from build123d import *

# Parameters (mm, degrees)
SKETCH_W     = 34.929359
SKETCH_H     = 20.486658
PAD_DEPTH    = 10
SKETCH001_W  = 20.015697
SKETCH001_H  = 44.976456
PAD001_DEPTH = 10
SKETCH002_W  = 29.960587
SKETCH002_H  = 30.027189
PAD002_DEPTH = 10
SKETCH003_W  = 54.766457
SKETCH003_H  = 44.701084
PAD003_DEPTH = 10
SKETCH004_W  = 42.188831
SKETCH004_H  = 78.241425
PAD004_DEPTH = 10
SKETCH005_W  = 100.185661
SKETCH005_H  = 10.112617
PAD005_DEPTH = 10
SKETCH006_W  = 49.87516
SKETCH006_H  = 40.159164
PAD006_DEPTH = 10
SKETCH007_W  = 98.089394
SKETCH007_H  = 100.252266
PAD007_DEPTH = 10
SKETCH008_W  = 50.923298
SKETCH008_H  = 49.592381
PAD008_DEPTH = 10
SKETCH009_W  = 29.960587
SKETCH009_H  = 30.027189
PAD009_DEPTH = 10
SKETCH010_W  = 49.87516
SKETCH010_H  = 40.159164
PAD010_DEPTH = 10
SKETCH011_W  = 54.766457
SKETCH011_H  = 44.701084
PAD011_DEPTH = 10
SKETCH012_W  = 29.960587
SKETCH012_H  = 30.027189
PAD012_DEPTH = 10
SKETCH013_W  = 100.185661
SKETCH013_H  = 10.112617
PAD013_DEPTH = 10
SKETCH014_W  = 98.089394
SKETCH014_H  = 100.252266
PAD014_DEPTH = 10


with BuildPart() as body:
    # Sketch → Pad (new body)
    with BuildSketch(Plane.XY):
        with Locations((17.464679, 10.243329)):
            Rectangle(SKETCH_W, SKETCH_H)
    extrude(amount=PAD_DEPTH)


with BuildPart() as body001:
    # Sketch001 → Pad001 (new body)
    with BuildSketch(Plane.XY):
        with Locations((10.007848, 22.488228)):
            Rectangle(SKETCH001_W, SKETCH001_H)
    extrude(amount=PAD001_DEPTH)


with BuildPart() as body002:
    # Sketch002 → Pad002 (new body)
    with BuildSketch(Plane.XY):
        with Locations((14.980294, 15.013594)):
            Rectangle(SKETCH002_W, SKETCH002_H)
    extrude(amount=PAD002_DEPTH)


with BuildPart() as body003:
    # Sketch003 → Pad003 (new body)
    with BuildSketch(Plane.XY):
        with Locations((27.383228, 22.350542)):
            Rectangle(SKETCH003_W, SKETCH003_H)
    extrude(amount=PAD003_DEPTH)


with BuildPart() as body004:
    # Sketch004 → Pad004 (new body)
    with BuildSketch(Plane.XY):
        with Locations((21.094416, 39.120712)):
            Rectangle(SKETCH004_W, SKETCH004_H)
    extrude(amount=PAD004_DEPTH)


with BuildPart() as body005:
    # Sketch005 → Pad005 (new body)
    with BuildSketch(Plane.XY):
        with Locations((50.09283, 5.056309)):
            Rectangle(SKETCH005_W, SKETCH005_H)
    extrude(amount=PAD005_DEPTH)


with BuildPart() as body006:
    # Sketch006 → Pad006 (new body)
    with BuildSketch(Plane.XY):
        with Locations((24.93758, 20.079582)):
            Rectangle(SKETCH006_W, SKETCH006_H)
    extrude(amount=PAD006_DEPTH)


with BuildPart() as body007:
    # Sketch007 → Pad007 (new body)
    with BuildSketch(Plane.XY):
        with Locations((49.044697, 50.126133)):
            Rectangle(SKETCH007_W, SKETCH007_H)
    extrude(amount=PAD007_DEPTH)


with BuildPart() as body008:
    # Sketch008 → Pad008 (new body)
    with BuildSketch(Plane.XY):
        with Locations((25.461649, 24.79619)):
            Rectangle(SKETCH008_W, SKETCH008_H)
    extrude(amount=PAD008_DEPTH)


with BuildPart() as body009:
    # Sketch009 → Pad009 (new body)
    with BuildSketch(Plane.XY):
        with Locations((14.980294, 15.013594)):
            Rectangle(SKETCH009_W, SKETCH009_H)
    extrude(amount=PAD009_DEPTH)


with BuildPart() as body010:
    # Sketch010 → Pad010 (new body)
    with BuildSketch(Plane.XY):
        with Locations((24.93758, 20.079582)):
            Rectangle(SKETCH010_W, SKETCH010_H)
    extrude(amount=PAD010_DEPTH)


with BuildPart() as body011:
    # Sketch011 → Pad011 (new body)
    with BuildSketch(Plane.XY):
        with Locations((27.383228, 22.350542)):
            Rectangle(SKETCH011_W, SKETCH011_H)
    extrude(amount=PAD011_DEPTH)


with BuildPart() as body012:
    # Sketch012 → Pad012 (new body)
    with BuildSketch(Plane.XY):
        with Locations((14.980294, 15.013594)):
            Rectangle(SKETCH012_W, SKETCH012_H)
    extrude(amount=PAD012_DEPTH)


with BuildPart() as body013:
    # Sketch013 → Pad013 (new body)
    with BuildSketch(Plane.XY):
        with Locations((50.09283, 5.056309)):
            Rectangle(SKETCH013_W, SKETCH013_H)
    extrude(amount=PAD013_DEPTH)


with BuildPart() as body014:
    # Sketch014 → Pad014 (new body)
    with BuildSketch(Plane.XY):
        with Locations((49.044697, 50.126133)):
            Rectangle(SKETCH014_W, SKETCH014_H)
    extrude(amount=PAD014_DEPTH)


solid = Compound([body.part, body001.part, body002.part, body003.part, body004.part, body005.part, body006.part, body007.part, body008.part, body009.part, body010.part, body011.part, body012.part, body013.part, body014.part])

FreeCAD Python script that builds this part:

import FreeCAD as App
import Part
import Sketcher

doc = App.newDocument("Part")
body = doc.addObject("PartDesign::Body", "Body")

# Sketch on XY plane
sketch1 = doc.addObject("Sketcher::SketchObject", "Sketch")
body.addObject(sketch1)
sketch1.AttachmentSupport = (doc.XY_Plane, [""])
sketch1.MapMode = "FlatFace"
sketch1.addGeometry([
    Part.LineSegment(App.Vector(0, 20, 0), App.Vector(0, 0, 0)),
    Part.LineSegment(App.Vector(0, 0, 0), App.Vector(35, 0, 0)),
    Part.LineSegment(App.Vector(35, 0, 0), App.Vector(35, 20, 0)),
    Part.LineSegment(App.Vector(35, 20, 0), App.Vector(0, 20, 0)),
], False)
sketch1.addConstraint([
    Sketcher.Constraint("Coincident", 0, 2, 1, 1),
    Sketcher.Constraint("Coincident", 1, 2, 2, 1),
    Sketcher.Constraint("Coincident", 2, 2, 3, 1),
    Sketcher.Constraint("Coincident", 3, 2, 0, 1),
    Sketcher.Constraint("Vertical", 0),
    Sketcher.Constraint("Horizontal", 1),
    Sketcher.Constraint("Vertical", 2),
    Sketcher.Constraint("Horizontal", 3),
    Sketcher.Constraint("Coincident", 0, 2, -1, 1),
    Sketcher.Constraint("DistanceX", 1, 1, 1, 2, 34.929359),
    Sketcher.Constraint("DistanceY", 0, 2, 0, 1, 20.486658),
])
pad1 = doc.addObject("PartDesign::Pad", "Pad")
body.addObject(pad1)
pad1.Profile = sketch1
pad1.Length = 10
body2 = doc.addObject("PartDesign::Body", "Body001")

# Sketch on XY plane
sketch2 = doc.addObject("Sketcher::SketchObject", "Sketch001")
body2.addObject(sketch2)
sketch2.AttachmentSupport = (doc.getObject("XY_Plane001"), [""])
sketch2.MapMode = "FlatFace"
sketch2.addGeometry([
    Part.LineSegment(App.Vector(0, 45, 0), App.Vector(0, 0, 0)),
    Part.LineSegment(App.Vector(0, 0, 0), App.Vector(20, 0, 0)),
    Part.LineSegment(App.Vector(20, 0, 0), App.Vector(20, 45, 0)),
    Part.LineSegment(App.Vector(20, 45, 0), App.Vector(0, 45, 0)),
], False)
sketch2.addConstraint([
    Sketcher.Constraint("Coincident", 0, 2, 1, 1),
    Sketcher.Constraint("Coincident", 1, 2, 2, 1),
    Sketcher.Constraint("Coincident", 2, 2, 3, 1),
    Sketcher.Constraint("Coincident", 3, 2, 0, 1),
    Sketcher.Constraint("Vertical", 0),
    Sketcher.Constraint("Horizontal", 1),
    Sketcher.Constraint("Vertical", 2),
    Sketcher.Constraint("Horizontal", 3),
    Sketcher.Constraint("Coincident", 0, 2, -1, 1),
    Sketcher.Constraint("DistanceX", 1, 1, 1, 2, 20.015697),
    Sketcher.Constraint("DistanceY", 0, 2, 0, 1, 44.976456),
])
pad2 = doc.addObject("PartDesign::Pad", "Pad001")
body2.addObject(pad2)
pad2.Profile = sketch2
pad2.Length = 10
body3 = doc.addObject("PartDesign::Body", "Body002")

# Sketch on XY plane
sketch3 = doc.addObject("Sketcher::SketchObject", "Sketch002")
body3.addObject(sketch3)
sketch3.AttachmentSupport = (doc.getObject("XY_Plane002"), [""])
sketch3.MapMode = "FlatFace"
sketch3.addGeometry([
    Part.LineSegment(App.Vector(0, 30, 0), App.Vector(0, 0, 0)),
    Part.LineSegment(App.Vector(0, 0, 0), App.Vector(30, 0, 0)),
    Part.LineSegment(App.Vector(30, 0, 0), App.Vector(30, 30, 0)),
    Part.LineSegment(App.Vector(30, 30, 0), App.Vector(0, 30, 0)),
], False)
sketch3.addConstraint([
    Sketcher.Constraint("Coincident", 0, 2, 1, 1),
    Sketcher.Constraint("Coincident", 1, 2, 2, 1),
    Sketcher.Constraint("Coincident", 2, 2, 3, 1),
    Sketcher.Constraint("Coincident", 3, 2, 0, 1),
    Sketcher.Constraint("Vertical", 0),
    Sketcher.Constraint("Horizontal", 1),
    Sketcher.Constraint("Vertical", 2),
    Sketcher.Constraint("Horizontal", 3),
    Sketcher.Constraint("Coincident", 0, 2, -1, 1),
    Sketcher.Constraint("DistanceY", 0, 2, 0, 1, 30.027189),
    Sketcher.Constraint("DistanceX", 1, 1, 1, 2, 29.960587),
])
pad3 = doc.addObject("PartDesign::Pad", "Pad002")
body3.addObject(pad3)
pad3.Profile = sketch3
pad3.Length = 10
body4 = doc.addObject("PartDesign::Body", "Body003")

# Sketch on XY plane
sketch4 = doc.addObject("Sketcher::SketchObject", "Sketch003")
body4.addObject(sketch4)
sketch4.AttachmentSupport = (doc.getObject("XY_Plane003"), [""])
sketch4.MapMode = "FlatFace"
sketch4.addGeometry([
    Part.LineSegment(App.Vector(0, 45, 0), App.Vector(0, 0, 0)),
    Part.LineSegment(App.Vector(0, 0, 0), App.Vector(55, 0, 0)),
    Part.LineSegment(App.Vector(55, 0, 0), App.Vector(55, 45, 0)),
    Part.LineSegment(App.Vector(55, 45, 0), App.Vector(0, 45, 0)),
], False)
sketch4.addConstraint([
    Sketcher.Constraint("Coincident", 0, 2, 1, 1),
    Sketcher.Constraint("Coincident", 1, 2, 2, 1),
    Sketcher.Constraint("Coincident", 2, 2, 3, 1),
    Sketcher.Constraint("Coincident", 3, 2, 0, 1),
    Sketcher.Constraint("Vertical", 0),
    Sketcher.Constraint("Horizontal", 1),
    Sketcher.Constraint("Vertical", 2),
    Sketcher.Constraint("Horizontal", 3),
    Sketcher.Constraint("Coincident", 0, 2, -1, 1),
    Sketcher.Constraint("DistanceX", 1, 1, 1, 2, 54.766457),
    Sketcher.Constraint("DistanceY", 0, 2, 0, 1, 44.701084),
])
pad4 = doc.addObject("PartDesign::Pad", "Pad003")
body4.addObject(pad4)
pad4.Profile = sketch4
pad4.Length = 10
body5 = doc.addObject("PartDesign::Body", "Body004")

# Sketch on XY plane
sketch5 = doc.addObject("Sketcher::SketchObject", "Sketch004")
body5.addObject(sketch5)
sketch5.AttachmentSupport = (doc.getObject("XY_Plane004"), [""])
sketch5.MapMode = "FlatFace"
sketch5.addGeometry([
    Part.LineSegment(App.Vector(0, 78, 0), App.Vector(0, 0, 0)),
    Part.LineSegment(App.Vector(0, 0, 0), App.Vector(42, 0, 0)),
    Part.LineSegment(App.Vector(42, 0, 0), App.Vector(42, 78, 0)),
    Part.LineSegment(App.Vector(42, 78, 0), App.Vector(0, 78, 0)),
], False)
sketch5.addConstraint([
    Sketcher.Constraint("Coincident", 0, 2, 1, 1),
    Sketcher.Constraint("Coincident", 1, 2, 2, 1),
    Sketcher.Constraint("Coincident", 2, 2, 3, 1),
    Sketcher.Constraint("Coincident", 3, 2, 0, 1),
    Sketcher.Constraint("Vertical", 0),
    Sketcher.Constraint("Horizontal", 1),
    Sketcher.Constraint("Vertical", 2),
    Sketcher.Constraint("Horizontal", 3),
    Sketcher.Constraint("Coincident", 0, 2, -1, 1),
    Sketcher.Constraint("DistanceX", 1, 1, 1, 2, 42.188831),
    Sketcher.Constraint("DistanceY", 0, 2, 0, 1, 78.241425),
])
pad5 = doc.addObject("PartDesign::Pad", "Pad004")
body5.addObject(pad5)
pad5.Profile = sketch5
pad5.Length = 10
body6 = doc.addObject("PartDesign::Body", "Body005")

# Sketch on XY plane
sketch6 = doc.addObject("Sketcher::SketchObject", "Sketch005")
body6.addObject(sketch6)
sketch6.AttachmentSupport = (doc.getObject("XY_Plane005"), [""])
sketch6.MapMode = "FlatFace"
sketch6.addGeometry([
    Part.LineSegment(App.Vector(0, 10, 0), App.Vector(0, 0, 0)),
    Part.LineSegment(App.Vector(0, 0, 0), App.Vector(100, 0, 0)),
    Part.LineSegment(App.Vector(100, 0, 0), App.Vector(100, 10, 0)),
    Part.LineSegment(App.Vector(100, 10, 0), App.Vector(0, 10, 0)),
], False)
sketch6.addConstraint([
    Sketcher.Constraint("Coincident", 0, 2, 1, 1),
    Sketcher.Constraint("Coincident", 1, 2, 2, 1),
    Sketcher.Constraint("Coincident", 2, 2, 3, 1),
    Sketcher.Constraint("Coincident", 3, 2, 0, 1),
    Sketcher.Constraint("Vertical", 0),
    Sketcher.Constraint("Horizontal", 1),
    Sketcher.Constraint("Vertical", 2),
    Sketcher.Constraint("Horizontal", 3),
    Sketcher.Constraint("Coincident", 0, 2, -1, 1),
    Sketcher.Constraint("DistanceX", 1, 1, 1, 2, 100.185661),
    Sketcher.Constraint("DistanceY", 0, 2, 0, 1, 10.112617),
])
pad6 = doc.addObject("PartDesign::Pad", "Pad005")
body6.addObject(pad6)
pad6.Profile = sketch6
pad6.Length = 10
body7 = doc.addObject("PartDesign::Body", "Body006")

# Sketch on XY plane
sketch7 = doc.addObject("Sketcher::SketchObject", "Sketch006")
body7.addObject(sketch7)
sketch7.AttachmentSupport = (doc.getObject("XY_Plane006"), [""])
sketch7.MapMode = "FlatFace"
sketch7.addGeometry([
    Part.LineSegment(App.Vector(0, 40, 0), App.Vector(0, 0, 0)),
    Part.LineSegment(App.Vector(0, 0, 0), App.Vector(50, 0, 0)),
    Part.LineSegment(App.Vector(50, 0, 0), App.Vector(50, 40, 0)),
    Part.LineSegment(App.Vector(50, 40, 0), App.Vector(0, 40, 0)),
], False)
sketch7.addConstraint([
    Sketcher.Constraint("Coincident", 0, 2, 1, 1),
    Sketcher.Constraint("Coincident", 1, 2, 2, 1),
    Sketcher.Constraint("Coincident", 2, 2, 3, 1),
    Sketcher.Constraint("Coincident", 3, 2, 0, 1),
    Sketcher.Constraint("Vertical", 0),
    Sketcher.Constraint("Horizontal", 1),
    Sketcher.Constraint("Vertical", 2),
    Sketcher.Constraint("Horizontal", 3),
    Sketcher.Constraint("Coincident", 0, 2, -1, 1),
    Sketcher.Constraint("DistanceX", 1, 1, 1, 2, 49.87516),
    Sketcher.Constraint("DistanceY", 0, 2, 0, 1, 40.159164),
])
pad7 = doc.addObject("PartDesign::Pad", "Pad006")
body7.addObject(pad7)
pad7.Profile = sketch7
pad7.Length = 10
body8 = doc.addObject("PartDesign::Body", "Body007")

# Sketch on XY plane
sketch8 = doc.addObject("Sketcher::SketchObject", "Sketch007")
body8.addObject(sketch8)
sketch8.AttachmentSupport = (doc.getObject("XY_Plane007"), [""])
sketch8.MapMode = "FlatFace"
sketch8.addGeometry([
    Part.LineSegment(App.Vector(0, 100, 0), App.Vector(0, 0, 0)),
    Part.LineSegment(App.Vector(0, 0, 0), App.Vector(98, 0, 0)),
    Part.LineSegment(App.Vector(98, 0, 0), App.Vector(98, 100, 0)),
    Part.LineSegment(App.Vector(98, 100, 0), App.Vector(0, 100, 0)),
], False)
sketch8.addConstraint([
    Sketcher.Constraint("Coincident", 0, 2, 1, 1),
    Sketcher.Constraint("Coincident", 1, 2, 2, 1),
    Sketcher.Constraint("Coincident", 2, 2, 3, 1),
    Sketcher.Constraint("Coincident", 3, 2, 0, 1),
    Sketcher.Constraint("Vertical", 0),
    Sketcher.Constraint("Horizontal", 1),
    Sketcher.Constraint("Vertical", 2),
    Sketcher.Constraint("Horizontal", 3),
    Sketcher.Constraint("Coincident", 0, 2, -1, 1),
    Sketcher.Constraint("DistanceX", 1, 1, 1, 2, 98.089394),
    Sketcher.Constraint("DistanceY", 0, 2, 0, 1, 100.252266),
])
pad8 = doc.addObject("PartDesign::Pad", "Pad007")
body8.addObject(pad8)
pad8.Profile = sketch8
pad8.Length = 10
body9 = doc.addObject("PartDesign::Body", "Body008")

# Sketch on XY plane
sketch9 = doc.addObject("Sketcher::SketchObject", "Sketch008")
body9.addObject(sketch9)
sketch9.AttachmentSupport = (doc.getObject("XY_Plane008"), [""])
sketch9.MapMode = "FlatFace"
sketch9.addGeometry([
    Part.LineSegment(App.Vector(0, 50, 0), App.Vector(0, 0, 0)),
    Part.LineSegment(App.Vector(0, 0, 0), App.Vector(51, 0, 0)),
    Part.LineSegment(App.Vector(51, 0, 0), App.Vector(51, 50, 0)),
    Part.LineSegment(App.Vector(51, 50, 0), App.Vector(0, 50, 0)),
], False)
sketch9.addConstraint([
    Sketcher.Constraint("Coincident", 0, 2, 1, 1),
    Sketcher.Constraint("Coincident", 1, 2, 2, 1),
    Sketcher.Constraint("Coincident", 2, 2, 3, 1),
    Sketcher.Constraint("Coincident", 3, 2, 0, 1),
    Sketcher.Constraint("Vertical", 0),
    Sketcher.Constraint("Horizontal", 1),
    Sketcher.Constraint("Vertical", 2),
    Sketcher.Constraint("Horizontal", 3),
    Sketcher.Constraint("Coincident", 0, 2, -1, 1),
    Sketcher.Constraint("DistanceX", 1, 1, 1, 2, 50.923298),
    Sketcher.Constraint("DistanceY", 0, 2, 0, 1, 49.592381),
])
pad9 = doc.addObject("PartDesign::Pad", "Pad008")
body9.addObject(pad9)
pad9.Profile = sketch9
pad9.Length = 10
body10 = doc.addObject("PartDesign::Body", "Body009")

# Sketch on XY plane
sketch10 = doc.addObject("Sketcher::SketchObject", "Sketch009")
body10.addObject(sketch10)
sketch10.AttachmentSupport = (doc.getObject("XY_Plane009"), [""])
sketch10.MapMode = "FlatFace"
sketch10.addGeometry([
    Part.LineSegment(App.Vector(0, 30, 0), App.Vector(0, 0, 0)),
    Part.LineSegment(App.Vector(0, 0, 0), App.Vector(30, 0, 0)),
    Part.LineSegment(App.Vector(30, 0, 0), App.Vector(30, 30, 0)),
    Part.LineSegment(App.Vector(30, 30, 0), App.Vector(0, 30, 0)),
], False)
sketch10.addConstraint([
    Sketcher.Constraint("Coincident", 0, 2, 1, 1),
    Sketcher.Constraint("Coincident", 1, 2, 2, 1),
    Sketcher.Constraint("Coincident", 2, 2, 3, 1),
    Sketcher.Constraint("Coincident", 3, 2, 0, 1),
    Sketcher.Constraint("Vertical", 0),
    Sketcher.Constraint("Horizontal", 1),
    Sketcher.Constraint("Vertical", 2),
    Sketcher.Constraint("Horizontal", 3),
    Sketcher.Constraint("Coincident", 0, 2, -1, 1),
    Sketcher.Constraint("DistanceY", 0, 2, 0, 1, 30.027189),
    Sketcher.Constraint("DistanceX", 1, 1, 1, 2, 29.960587),
])
pad10 = doc.addObject("PartDesign::Pad", "Pad009")
body10.addObject(pad10)
pad10.Profile = sketch10
pad10.Length = 10
body11 = doc.addObject("PartDesign::Body", "Body010")

# Sketch on XY plane
sketch11 = doc.addObject("Sketcher::SketchObject", "Sketch010")
body11.addObject(sketch11)
sketch11.AttachmentSupport = (doc.getObject("XY_Plane010"), [""])
sketch11.MapMode = "FlatFace"
sketch11.addGeometry([
    Part.LineSegment(App.Vector(0, 40, 0), App.Vector(0, 0, 0)),
    Part.LineSegment(App.Vector(0, 0, 0), App.Vector(50, 0, 0)),
    Part.LineSegment(App.Vector(50, 0, 0), App.Vector(50, 40, 0)),
    Part.LineSegment(App.Vector(50, 40, 0), App.Vector(0, 40, 0)),
], False)
sketch11.addConstraint([
    Sketcher.Constraint("Coincident", 0, 2, 1, 1),
    Sketcher.Constraint("Coincident", 1, 2, 2, 1),
    Sketcher.Constraint("Coincident", 2, 2, 3, 1),
    Sketcher.Constraint("Coincident", 3, 2, 0, 1),
    Sketcher.Constraint("Vertical", 0),
    Sketcher.Constraint("Horizontal", 1),
    Sketcher.Constraint("Vertical", 2),
    Sketcher.Constraint("Horizontal", 3),
    Sketcher.Constraint("Coincident", 0, 2, -1, 1),
    Sketcher.Constraint("DistanceX", 1, 1, 1, 2, 49.87516),
    Sketcher.Constraint("DistanceY", 0, 2, 0, 1, 40.159164),
])
pad11 = doc.addObject("PartDesign::Pad", "Pad010")
body11.addObject(pad11)
pad11.Profile = sketch11
pad11.Length = 10
body12 = doc.addObject("PartDesign::Body", "Body011")

# Sketch on XY plane
sketch12 = doc.addObject("Sketcher::SketchObject", "Sketch011")
body12.addObject(sketch12)
sketch12.AttachmentSupport = (doc.getObject("XY_Plane011"), [""])
sketch12.MapMode = "FlatFace"
sketch12.addGeometry([
    Part.LineSegment(App.Vector(0, 45, 0), App.Vector(0, 0, 0)),
    Part.LineSegment(App.Vector(0, 0, 0), App.Vector(55, 0, 0)),
    Part.LineSegment(App.Vector(55, 0, 0), App.Vector(55, 45, 0)),
    Part.LineSegment(App.Vector(55, 45, 0), App.Vector(0, 45, 0)),
], False)
sketch12.addConstraint([
    Sketcher.Constraint("Coincident", 0, 2, 1, 1),
    Sketcher.Constraint("Coincident", 1, 2, 2, 1),
    Sketcher.Constraint("Coincident", 2, 2, 3, 1),
    Sketcher.Constraint("Coincident", 3, 2, 0, 1),
    Sketcher.Constraint("Vertical", 0),
    Sketcher.Constraint("Horizontal", 1),
    Sketcher.Constraint("Vertical", 2),
    Sketcher.Constraint("Horizontal", 3),
    Sketcher.Constraint("Coincident", 0, 2, -1, 1),
    Sketcher.Constraint("DistanceX", 1, 1, 1, 2, 54.766457),
    Sketcher.Constraint("DistanceY", 0, 2, 0, 1, 44.701084),
])
pad12 = doc.addObject("PartDesign::Pad", "Pad011")
body12.addObject(pad12)
pad12.Profile = sketch12
pad12.Length = 10
body13 = doc.addObject("PartDesign::Body", "Body012")

# Sketch on XY plane
sketch13 = doc.addObject("Sketcher::SketchObject", "Sketch012")
body13.addObject(sketch13)
sketch13.AttachmentSupport = (doc.getObject("XY_Plane012"), [""])
sketch13.MapMode = "FlatFace"
sketch13.addGeometry([
    Part.LineSegment(App.Vector(0, 30, 0), App.Vector(0, 0, 0)),
    Part.LineSegment(App.Vector(0, 0, 0), App.Vector(30, 0, 0)),
    Part.LineSegment(App.Vector(30, 0, 0), App.Vector(30, 30, 0)),
    Part.LineSegment(App.Vector(30, 30, 0), App.Vector(0, 30, 0)),
], False)
sketch13.addConstraint([
    Sketcher.Constraint("Coincident", 0, 2, 1, 1),
    Sketcher.Constraint("Coincident", 1, 2, 2, 1),
    Sketcher.Constraint("Coincident", 2, 2, 3, 1),
    Sketcher.Constraint("Coincident", 3, 2, 0, 1),
    Sketcher.Constraint("Vertical", 0),
    Sketcher.Constraint("Horizontal", 1),
    Sketcher.Constraint("Vertical", 2),
    Sketcher.Constraint("Horizontal", 3),
    Sketcher.Constraint("Coincident", 0, 2, -1, 1),
    Sketcher.Constraint("DistanceY", 0, 2, 0, 1, 30.027189),
    Sketcher.Constraint("DistanceX", 1, 1, 1, 2, 29.960587),
])
pad13 = doc.addObject("PartDesign::Pad", "Pad012")
body13.addObject(pad13)
pad13.Profile = sketch13
pad13.Length = 10
body14 = doc.addObject("PartDesign::Body", "Body013")

# Sketch on XY plane
sketch14 = doc.addObject("Sketcher::SketchObject", "Sketch013")
body14.addObject(sketch14)
sketch14.AttachmentSupport = (doc.getObject("XY_Plane013"), [""])
sketch14.MapMode = "FlatFace"
sketch14.addGeometry([
    Part.LineSegment(App.Vector(0, 10, 0), App.Vector(0, 0, 0)),
    Part.LineSegment(App.Vector(0, 0, 0), App.Vector(100, 0, 0)),
    Part.LineSegment(App.Vector(100, 0, 0), App.Vector(100, 10, 0)),
    Part.LineSegment(App.Vector(100, 10, 0), App.Vector(0, 10, 0)),
], False)
sketch14.addConstraint([
    Sketcher.Constraint("Coincident", 0, 2, 1, 1),
    Sketcher.Constraint("Coincident", 1, 2, 2, 1),
    Sketcher.Constraint("Coincident", 2, 2, 3, 1),
    Sketcher.Constraint("Coincident", 3, 2, 0, 1),
    Sketcher.Constraint("Vertical", 0),
    Sketcher.Constraint("Horizontal", 1),
    Sketcher.Constraint("Vertical", 2),
    Sketcher.Constraint("Horizontal", 3),
    Sketcher.Constraint("Coincident", 0, 2, -1, 1),
    Sketcher.Constraint("DistanceX", 1, 1, 1, 2, 100.185661),
    Sketcher.Constraint("DistanceY", 0, 2, 0, 1, 10.112617),
])
pad14 = doc.addObject("PartDesign::Pad", "Pad013")
body14.addObject(pad14)
pad14.Profile = sketch14
pad14.Length = 10
body15 = doc.addObject("PartDesign::Body", "Body014")

# Sketch on XY plane
sketch15 = doc.addObject("Sketcher::SketchObject", "Sketch014")
body15.addObject(sketch15)
sketch15.AttachmentSupport = (doc.getObject("XY_Plane014"), [""])
sketch15.MapMode = "FlatFace"
sketch15.addGeometry([
    Part.LineSegment(App.Vector(0, 100, 0), App.Vector(0, 0, 0)),
    Part.LineSegment(App.Vector(0, 0, 0), App.Vector(98, 0, 0)),
    Part.LineSegment(App.Vector(98, 0, 0), App.Vector(98, 100, 0)),
    Part.LineSegment(App.Vector(98, 100, 0), App.Vector(0, 100, 0)),
], False)
sketch15.addConstraint([
    Sketcher.Constraint("Coincident", 0, 2, 1, 1),
    Sketcher.Constraint("Coincident", 1, 2, 2, 1),
    Sketcher.Constraint("Coincident", 2, 2, 3, 1),
    Sketcher.Constraint("Coincident", 3, 2, 0, 1),
    Sketcher.Constraint("Vertical", 0),
    Sketcher.Constraint("Horizontal", 1),
    Sketcher.Constraint("Vertical", 2),
    Sketcher.Constraint("Horizontal", 3),
    Sketcher.Constraint("Coincident", 0, 2, -1, 1),
    Sketcher.Constraint("DistanceX", 1, 1, 1, 2, 98.089394),
    Sketcher.Constraint("DistanceY", 0, 2, 0, 1, 100.252266),
])
pad15 = doc.addObject("PartDesign::Pad", "Pad014")
body15.addObject(pad15)
pad15.Profile = sketch15
pad15.Length = 10

doc.recompute()
